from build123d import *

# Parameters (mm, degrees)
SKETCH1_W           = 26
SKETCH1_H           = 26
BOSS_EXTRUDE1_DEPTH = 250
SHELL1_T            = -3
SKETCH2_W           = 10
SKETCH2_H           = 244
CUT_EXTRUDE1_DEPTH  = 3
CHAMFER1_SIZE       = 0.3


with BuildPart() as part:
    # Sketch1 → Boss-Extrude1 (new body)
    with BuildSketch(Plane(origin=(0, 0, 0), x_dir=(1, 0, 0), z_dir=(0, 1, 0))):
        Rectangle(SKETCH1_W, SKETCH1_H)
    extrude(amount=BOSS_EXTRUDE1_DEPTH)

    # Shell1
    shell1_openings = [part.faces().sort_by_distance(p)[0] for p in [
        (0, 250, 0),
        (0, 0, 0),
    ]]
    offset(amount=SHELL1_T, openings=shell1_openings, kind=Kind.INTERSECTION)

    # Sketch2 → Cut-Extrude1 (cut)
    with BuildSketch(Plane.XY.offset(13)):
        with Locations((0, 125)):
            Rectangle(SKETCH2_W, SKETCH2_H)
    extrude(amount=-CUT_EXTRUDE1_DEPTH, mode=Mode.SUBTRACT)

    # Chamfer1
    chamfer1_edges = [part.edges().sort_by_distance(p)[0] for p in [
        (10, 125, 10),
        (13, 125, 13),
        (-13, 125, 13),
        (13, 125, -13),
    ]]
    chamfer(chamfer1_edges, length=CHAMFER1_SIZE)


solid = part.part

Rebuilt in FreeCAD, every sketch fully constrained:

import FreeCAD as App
import Part
import Sketcher
from FreeCAD import Vector
Q = App.Units.Quantity


def edges_at(feature, points):
    """Names of the edges that pass closest to the given points."""
    edges = feature.Shape.Edges
    near = lambda p: min(range(len(edges)), key=lambda i: edges[i].distToShape(Part.Vertex(*p))[0])
    return sorted({f"Edge{near(p) + 1}" for p in points})


def faces_at(feature, points):
    """Names of the faces that lie closest to the given points."""
    faces = feature.Shape.Faces
    near = lambda p: min(range(len(faces)), key=lambda i: faces[i].distToShape(Part.Vertex(*p))[0])
    return sorted({f"Face{near(p) + 1}" for p in points})

doc = App.newDocument("Part")
body = doc.addObject("PartDesign::Body", "Body")

sketch1 = body.newObject("Sketcher::SketchObject", "Sketch")
sketch1.AttachmentSupport = (doc.getObject("XZ_Plane"), [""])
sketch1.MapMode = "FlatFace"
sketch1.addGeometry([
    Part.LineSegment(Vector(-13, -13, 0), Vector(-13, 13, 0)),
    Part.LineSegment(Vector(-13, 13, 0), Vector(13, 13, 0)),
    Part.LineSegment(Vector(13, 13, 0), Vector(13, -13, 0)),
    Part.LineSegment(Vector(13, -13, 0), Vector(-13, -13, 0)),
], False)
sketch1.addConstraint([
    Sketcher.Constraint("Coincident", 0, 2, 1, 1),
    Sketcher.Constraint("Coincident", 1, 2, 2, 1),
    Sketcher.Constraint("Coincident", 2, 2, 3, 1),
    Sketcher.Constraint("Coincident", 3, 2, 0, 1),
    Sketcher.Constraint("Vertical", 0),
    Sketcher.Constraint("Horizontal", 1),
    Sketcher.Constraint("Vertical", 2),
    Sketcher.Constraint("Horizontal", 3),
    Sketcher.Constraint("Symmetric", 0, 2, 2, 2, -1, 1),
    Sketcher.Constraint("Equal", 3, 0),
    Sketcher.Constraint("DistanceX", 1, 1, 1, 2, Q("26 mm")),
])
pad1 = body.newObject("PartDesign::Pad", "Pad")
pad1.Profile = sketch1
pad1.Length = 250
pad1.Reversed = True
doc.recompute()

thickness = body.newObject("PartDesign::Thickness", "Thickness")
thickness.Base = (pad1, faces_at(pad1, [(0, 250, 0), (0, 0, 0)]))
thickness.Value = 3
thickness.Reversed = True
thickness.Join = "Intersection"

sketch2 = body.newObject("Sketcher::SketchObject", "Sketch001")
sketch2.AttachmentSupport = (doc.getObject("XY_Plane"), [""])
sketch2.MapMode = "FlatFace"
sketch2.AttachmentOffset = App.Placement(Vector(0, 0, 13), App.Rotation())
sketch2.addGeometry([
    Part.LineSegment(Vector(-5, 247, 0), Vector(-5, 3, 0)),
    Part.LineSegment(Vector(-5, 3, 0), Vector(5, 3, 0)),
    Part.LineSegment(Vector(5, 3, 0), Vector(5, 247, 0)),
    Part.LineSegment(Vector(5, 247, 0), Vector(-5, 247, 0)),
], False)
sketch2.addConstraint([
    Sketcher.Constraint("Coincident", 0, 2, 1, 1),
    Sketcher.Constraint("Coincident", 1, 2, 2, 1),
    Sketcher.Constraint("Coincident", 2, 2, 3, 1),
    Sketcher.Constraint("Coincident", 3, 2, 0, 1),
    Sketcher.Constraint("Vertical", 0),
    Sketcher.Constraint("Horizontal", 1),
    Sketcher.Constraint("Vertical", 2),
    Sketcher.Constraint("Horizontal", 3),
    Sketcher.Constraint("DistanceX", 1, 1, 1, 2, Q("10 mm")),
    Sketcher.Constraint("DistanceY", 0, 2, 0, 1, Q("244 mm")),
    Sketcher.Constraint("DistanceX", 0, 2, -1, 1, Q("5 mm")),
    Sketcher.Constraint("DistanceY", -1, 1, 0, 2, Q("3 mm")),
])
pocket1 = body.newObject("PartDesign::Pocket", "Pocket")
pocket1.Profile = sketch2
pocket1.Length = 3
doc.recompute()

chamfer = body.newObject("PartDesign::Chamfer", "Chamfer")
chamfer.Base = (pocket1, edges_at(pocket1, [
    (10, 125, 10),
    (13, 125, 13),
    (-13, 125, 13),
    (13, 125, -13),
]))
chamfer.Size = 0.3

doc.recompute()
